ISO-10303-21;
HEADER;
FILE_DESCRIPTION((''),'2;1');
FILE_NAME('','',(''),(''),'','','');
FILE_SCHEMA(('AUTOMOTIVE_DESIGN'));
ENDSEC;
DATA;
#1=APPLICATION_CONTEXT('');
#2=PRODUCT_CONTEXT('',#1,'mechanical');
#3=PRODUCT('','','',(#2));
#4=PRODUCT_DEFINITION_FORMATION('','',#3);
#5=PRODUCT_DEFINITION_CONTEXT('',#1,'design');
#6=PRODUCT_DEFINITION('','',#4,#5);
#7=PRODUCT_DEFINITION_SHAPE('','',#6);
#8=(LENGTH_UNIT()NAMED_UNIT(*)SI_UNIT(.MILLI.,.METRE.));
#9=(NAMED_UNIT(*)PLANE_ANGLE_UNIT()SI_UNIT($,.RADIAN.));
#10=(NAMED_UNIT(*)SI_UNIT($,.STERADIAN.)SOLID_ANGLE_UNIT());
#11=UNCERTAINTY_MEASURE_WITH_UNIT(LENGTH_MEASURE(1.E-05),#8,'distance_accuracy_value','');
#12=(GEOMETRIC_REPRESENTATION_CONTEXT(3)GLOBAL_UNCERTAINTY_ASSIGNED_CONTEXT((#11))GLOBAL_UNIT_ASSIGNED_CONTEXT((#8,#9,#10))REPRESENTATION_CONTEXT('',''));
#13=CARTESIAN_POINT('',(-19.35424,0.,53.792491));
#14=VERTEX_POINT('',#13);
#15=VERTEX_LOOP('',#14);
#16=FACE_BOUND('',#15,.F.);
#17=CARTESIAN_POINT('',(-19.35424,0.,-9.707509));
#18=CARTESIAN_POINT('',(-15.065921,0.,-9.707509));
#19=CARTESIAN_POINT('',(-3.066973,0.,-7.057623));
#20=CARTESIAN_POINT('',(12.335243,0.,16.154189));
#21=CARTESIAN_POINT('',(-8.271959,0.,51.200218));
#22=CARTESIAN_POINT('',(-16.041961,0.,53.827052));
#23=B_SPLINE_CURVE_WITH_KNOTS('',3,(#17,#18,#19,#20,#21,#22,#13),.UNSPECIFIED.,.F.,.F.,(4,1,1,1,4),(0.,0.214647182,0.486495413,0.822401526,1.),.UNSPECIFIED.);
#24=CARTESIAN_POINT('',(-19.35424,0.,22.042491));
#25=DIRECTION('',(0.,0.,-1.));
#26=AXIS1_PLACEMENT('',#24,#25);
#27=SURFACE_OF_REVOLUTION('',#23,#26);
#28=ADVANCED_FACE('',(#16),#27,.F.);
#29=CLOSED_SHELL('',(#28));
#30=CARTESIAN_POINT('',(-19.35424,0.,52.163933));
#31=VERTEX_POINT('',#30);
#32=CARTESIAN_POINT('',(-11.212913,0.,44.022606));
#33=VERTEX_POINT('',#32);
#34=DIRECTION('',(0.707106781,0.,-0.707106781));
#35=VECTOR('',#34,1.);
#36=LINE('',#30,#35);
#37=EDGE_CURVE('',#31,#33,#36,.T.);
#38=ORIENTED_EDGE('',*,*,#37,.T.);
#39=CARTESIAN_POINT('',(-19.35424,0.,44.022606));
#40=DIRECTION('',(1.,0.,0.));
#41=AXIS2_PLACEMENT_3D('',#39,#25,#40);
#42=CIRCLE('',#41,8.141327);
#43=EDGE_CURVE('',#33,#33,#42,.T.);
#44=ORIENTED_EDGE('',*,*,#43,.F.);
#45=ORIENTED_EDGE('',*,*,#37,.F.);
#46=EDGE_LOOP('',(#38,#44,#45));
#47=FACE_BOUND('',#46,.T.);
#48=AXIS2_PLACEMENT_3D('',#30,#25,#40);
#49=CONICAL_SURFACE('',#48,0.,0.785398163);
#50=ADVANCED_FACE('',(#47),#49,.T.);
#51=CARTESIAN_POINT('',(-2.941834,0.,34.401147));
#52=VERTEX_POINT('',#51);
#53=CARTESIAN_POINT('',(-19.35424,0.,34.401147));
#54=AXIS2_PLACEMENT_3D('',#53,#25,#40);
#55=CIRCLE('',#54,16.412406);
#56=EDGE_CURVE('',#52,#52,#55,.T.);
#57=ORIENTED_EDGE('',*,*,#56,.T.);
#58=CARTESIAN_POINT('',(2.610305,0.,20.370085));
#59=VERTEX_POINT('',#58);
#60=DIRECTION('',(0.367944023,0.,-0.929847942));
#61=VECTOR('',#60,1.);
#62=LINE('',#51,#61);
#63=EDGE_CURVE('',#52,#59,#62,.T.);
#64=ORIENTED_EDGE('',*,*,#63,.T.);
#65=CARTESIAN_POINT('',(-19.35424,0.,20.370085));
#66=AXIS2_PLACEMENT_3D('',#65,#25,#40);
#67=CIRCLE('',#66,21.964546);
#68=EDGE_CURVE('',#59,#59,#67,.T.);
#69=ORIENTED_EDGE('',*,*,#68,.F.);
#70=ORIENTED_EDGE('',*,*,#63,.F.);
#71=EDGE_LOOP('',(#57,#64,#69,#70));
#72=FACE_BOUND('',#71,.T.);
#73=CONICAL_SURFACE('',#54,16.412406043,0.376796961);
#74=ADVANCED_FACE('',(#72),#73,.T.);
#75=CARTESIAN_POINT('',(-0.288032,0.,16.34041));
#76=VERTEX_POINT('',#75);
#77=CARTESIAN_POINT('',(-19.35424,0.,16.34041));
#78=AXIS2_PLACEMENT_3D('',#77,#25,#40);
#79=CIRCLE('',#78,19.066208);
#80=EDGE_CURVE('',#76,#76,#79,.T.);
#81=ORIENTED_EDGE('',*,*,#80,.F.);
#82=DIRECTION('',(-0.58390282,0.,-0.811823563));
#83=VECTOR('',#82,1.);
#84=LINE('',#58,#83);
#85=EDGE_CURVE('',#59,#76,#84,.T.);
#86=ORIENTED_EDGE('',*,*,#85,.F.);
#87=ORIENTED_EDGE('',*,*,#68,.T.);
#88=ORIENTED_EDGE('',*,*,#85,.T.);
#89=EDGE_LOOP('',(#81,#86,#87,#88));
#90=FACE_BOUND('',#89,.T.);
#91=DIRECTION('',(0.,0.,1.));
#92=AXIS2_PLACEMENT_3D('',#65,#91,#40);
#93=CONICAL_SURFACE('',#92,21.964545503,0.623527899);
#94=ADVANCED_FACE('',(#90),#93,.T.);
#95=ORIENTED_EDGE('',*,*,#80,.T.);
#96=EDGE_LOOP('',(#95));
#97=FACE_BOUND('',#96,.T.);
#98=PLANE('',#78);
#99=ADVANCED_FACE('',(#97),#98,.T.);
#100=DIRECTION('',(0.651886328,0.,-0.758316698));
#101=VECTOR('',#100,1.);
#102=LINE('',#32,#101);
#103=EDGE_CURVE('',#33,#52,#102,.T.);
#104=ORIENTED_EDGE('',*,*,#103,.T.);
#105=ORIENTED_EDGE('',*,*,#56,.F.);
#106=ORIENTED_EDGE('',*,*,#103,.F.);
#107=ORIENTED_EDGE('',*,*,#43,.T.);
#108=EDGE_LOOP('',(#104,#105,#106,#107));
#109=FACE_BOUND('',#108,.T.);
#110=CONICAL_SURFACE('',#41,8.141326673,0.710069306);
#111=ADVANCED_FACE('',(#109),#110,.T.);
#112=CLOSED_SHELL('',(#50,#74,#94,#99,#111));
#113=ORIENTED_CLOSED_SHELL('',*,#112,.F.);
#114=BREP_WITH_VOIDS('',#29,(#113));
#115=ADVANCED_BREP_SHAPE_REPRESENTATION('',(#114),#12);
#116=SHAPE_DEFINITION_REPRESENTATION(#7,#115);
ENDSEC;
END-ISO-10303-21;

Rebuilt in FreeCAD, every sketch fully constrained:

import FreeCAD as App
import Part
import Sketcher
from FreeCAD import Vector
Q = App.Units.Quantity

doc = App.newDocument("Part")
body = doc.addObject("PartDesign::Body", "Body")

sketch1 = body.newObject("Sketcher::SketchObject", "Sketch")
sketch1.AttachmentSupport = (doc.getObject("XZ_Plane"), [""])
sketch1.MapMode = "FlatFace"
sketch1.addGeometry([
    Part.LineSegment(Vector(-19.35424, 16.34041, 0), Vector(-19.35424, -9.707509, 0)),
    Part.BSplineCurve([Vector(-19.35424, -9.707509, 0), Vector(-15.065921, -9.707509, 0), Vector(-3.066973, -7.057623, 0), Vector(12.335243, 16.154189, 0), Vector(-8.271959, 51.200218, 0), Vector(-16.041961, 53.827052, 0), Vector(-19.35424, 53.792491, 0)], [4, 1, 1, 1, 4], [0, 0.214647182, 0.486495413, 0.822401526, 1], False, 3, [1, 1, 1, 1, 1, 1, 1], False),
    Part.LineSegment(Vector(-19.35424, 53.792491, 0), Vector(-19.35424, 52.163933, 0)),
    Part.LineSegment(Vector(-19.35424, 52.163933, 0), Vector(-11.212913, 44.022606, 0)),
    Part.LineSegment(Vector(-11.212913, 44.022606, 0), Vector(-2.941834, 34.401147, 0)),
    Part.LineSegment(Vector(-2.941834, 34.401147, 0), Vector(2.610305, 20.370085, 0)),
    Part.LineSegment(Vector(2.610305, 20.370085, 0), Vector(-0.288032, 16.34041, 0)),
    Part.LineSegment(Vector(-0.288032, 16.34041, 0), Vector(-19.35424, 16.34041, 0)),
], False)
sketch1.addGeometry(Part.LineSegment(Vector(-19.35424, 53.792491, 0), Vector(-19.35424, -9.707509, 0)), True)
sketch1.addConstraint([
    Sketcher.Constraint("Block", 1),
    Sketcher.Constraint("Coincident", 0, 2, 1, 1),
    Sketcher.Constraint("Coincident", 1, 2, 2, 1),
    Sketcher.Constraint("Coincident", 2, 2, 3, 1),
    Sketcher.Constraint("Coincident", 3, 2, 4, 1),
    Sketcher.Constraint("Coincident", 4, 2, 5, 1),
    Sketcher.Constraint("Coincident", 5, 2, 6, 1),
    Sketcher.Constraint("Coincident", 6, 2, 7, 1),
    Sketcher.Constraint("Coincident", 7, 2, 0, 1),
    Sketcher.Constraint("Vertical", 0),
    Sketcher.Constraint("Vertical", 2),
    Sketcher.Constraint("Horizontal", 7),
    Sketcher.Constraint("Vertical", 8),
    Sketcher.Constraint("Coincident", 8, 2, 0, 2),
    Sketcher.Constraint("Angle", 3, Q("-45 deg")),
    Sketcher.Constraint("DistanceY", 8, 2, 8, 1, Q("63.5 mm")),
    Sketcher.Constraint("DistanceY", 0, 2, 0, 1, Q("26.047918 mm")),
    Sketcher.Constraint("DistanceY", 2, 2, 2, 1, Q("1.628558 mm")),
    Sketcher.Constraint("DistanceX", 4, 2, 6, 2, Q("2.653802 mm")),
    Sketcher.Constraint("Distance", 5, Q("15.089631 mm")),
    Sketcher.Constraint("DistanceX", 7, 2, 7, 1, Q("19.066208 mm")),
    Sketcher.Constraint("DistanceX", 3, 2, 4, 2, Q("8.271079 mm")),
    Sketcher.Constraint("DistanceY", 4, 2, 3, 2, Q("9.621459 mm")),
    Sketcher.Constraint("DistanceX", 4, 2, 5, 2, Q("5.552139 mm")),
])
revolution = body.newObject("PartDesign::Revolution", "Revolution")
revolution.Profile = sketch1
revolution.ReferenceAxis = (sketch1, ["Axis0"])
revolution.Angle = 360

doc.recompute()
